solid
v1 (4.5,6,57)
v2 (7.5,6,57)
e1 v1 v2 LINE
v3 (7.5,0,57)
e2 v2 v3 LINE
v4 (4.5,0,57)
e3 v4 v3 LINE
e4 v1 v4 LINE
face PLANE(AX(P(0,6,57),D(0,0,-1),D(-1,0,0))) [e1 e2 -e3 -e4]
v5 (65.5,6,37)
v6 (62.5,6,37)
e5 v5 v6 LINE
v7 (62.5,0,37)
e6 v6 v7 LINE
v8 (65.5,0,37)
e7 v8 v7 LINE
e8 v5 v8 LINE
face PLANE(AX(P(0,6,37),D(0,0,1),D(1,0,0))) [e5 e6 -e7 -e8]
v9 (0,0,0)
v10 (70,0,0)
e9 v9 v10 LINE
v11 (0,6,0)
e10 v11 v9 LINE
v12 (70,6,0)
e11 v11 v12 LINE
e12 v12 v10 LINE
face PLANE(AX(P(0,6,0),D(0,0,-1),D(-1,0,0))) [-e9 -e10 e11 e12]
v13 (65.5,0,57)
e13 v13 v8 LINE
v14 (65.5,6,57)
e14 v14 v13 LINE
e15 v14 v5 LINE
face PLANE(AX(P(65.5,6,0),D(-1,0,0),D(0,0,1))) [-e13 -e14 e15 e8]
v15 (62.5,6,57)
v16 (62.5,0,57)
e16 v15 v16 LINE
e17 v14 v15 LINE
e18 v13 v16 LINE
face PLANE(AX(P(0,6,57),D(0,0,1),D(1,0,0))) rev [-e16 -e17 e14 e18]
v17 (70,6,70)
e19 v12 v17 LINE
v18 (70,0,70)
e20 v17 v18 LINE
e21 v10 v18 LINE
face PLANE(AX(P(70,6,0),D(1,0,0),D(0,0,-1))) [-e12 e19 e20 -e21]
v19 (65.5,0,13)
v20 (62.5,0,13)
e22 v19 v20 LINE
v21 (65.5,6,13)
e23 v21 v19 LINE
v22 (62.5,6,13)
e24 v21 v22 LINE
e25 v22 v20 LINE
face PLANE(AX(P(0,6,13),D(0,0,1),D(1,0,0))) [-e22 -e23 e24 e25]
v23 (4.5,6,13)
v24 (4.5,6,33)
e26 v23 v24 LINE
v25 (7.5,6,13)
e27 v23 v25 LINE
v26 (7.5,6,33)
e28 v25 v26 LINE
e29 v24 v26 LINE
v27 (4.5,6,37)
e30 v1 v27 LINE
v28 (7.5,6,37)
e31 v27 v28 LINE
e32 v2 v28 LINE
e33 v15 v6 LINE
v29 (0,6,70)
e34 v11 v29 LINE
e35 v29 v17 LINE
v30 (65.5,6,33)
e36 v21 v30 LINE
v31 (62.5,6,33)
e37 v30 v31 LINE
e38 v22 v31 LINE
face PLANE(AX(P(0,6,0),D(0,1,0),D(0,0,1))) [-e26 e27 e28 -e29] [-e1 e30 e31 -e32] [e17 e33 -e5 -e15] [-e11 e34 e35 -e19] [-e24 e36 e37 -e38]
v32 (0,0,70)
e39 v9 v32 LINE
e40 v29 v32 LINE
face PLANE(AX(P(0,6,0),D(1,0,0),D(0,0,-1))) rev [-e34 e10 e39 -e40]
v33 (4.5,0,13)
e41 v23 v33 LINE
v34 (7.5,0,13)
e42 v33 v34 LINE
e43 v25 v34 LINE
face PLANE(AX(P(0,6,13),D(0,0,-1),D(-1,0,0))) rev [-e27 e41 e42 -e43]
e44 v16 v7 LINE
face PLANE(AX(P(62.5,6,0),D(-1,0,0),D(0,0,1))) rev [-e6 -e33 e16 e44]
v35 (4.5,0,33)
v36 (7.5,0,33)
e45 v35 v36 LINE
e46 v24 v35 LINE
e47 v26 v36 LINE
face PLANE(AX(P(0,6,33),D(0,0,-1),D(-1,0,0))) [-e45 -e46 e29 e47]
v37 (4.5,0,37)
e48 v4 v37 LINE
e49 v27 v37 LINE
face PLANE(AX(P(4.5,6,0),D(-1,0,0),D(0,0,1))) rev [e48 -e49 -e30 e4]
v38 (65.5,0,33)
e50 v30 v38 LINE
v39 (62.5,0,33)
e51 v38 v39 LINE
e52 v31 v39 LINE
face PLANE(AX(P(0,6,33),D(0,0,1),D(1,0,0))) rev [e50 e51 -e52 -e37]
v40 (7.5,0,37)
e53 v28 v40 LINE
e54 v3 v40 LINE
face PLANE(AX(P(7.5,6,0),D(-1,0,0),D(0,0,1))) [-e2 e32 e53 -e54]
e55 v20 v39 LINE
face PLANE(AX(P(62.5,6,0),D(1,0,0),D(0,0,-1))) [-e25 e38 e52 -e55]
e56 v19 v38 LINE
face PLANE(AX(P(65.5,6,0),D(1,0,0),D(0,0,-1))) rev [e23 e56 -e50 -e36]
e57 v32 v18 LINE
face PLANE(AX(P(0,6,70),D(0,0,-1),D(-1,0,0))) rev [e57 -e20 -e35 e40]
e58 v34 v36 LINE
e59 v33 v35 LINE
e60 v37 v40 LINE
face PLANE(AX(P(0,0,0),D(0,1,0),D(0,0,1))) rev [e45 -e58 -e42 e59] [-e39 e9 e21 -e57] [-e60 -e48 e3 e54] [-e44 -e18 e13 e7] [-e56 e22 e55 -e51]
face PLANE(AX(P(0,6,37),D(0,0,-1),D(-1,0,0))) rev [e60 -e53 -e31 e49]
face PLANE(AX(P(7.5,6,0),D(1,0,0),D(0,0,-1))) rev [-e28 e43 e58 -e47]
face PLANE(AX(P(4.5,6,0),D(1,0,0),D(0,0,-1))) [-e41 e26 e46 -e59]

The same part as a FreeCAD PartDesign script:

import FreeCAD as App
import Part
import Sketcher

V = App.Vector


def add_polygon(sketch, points):
    """Adds a closed chain of lines whose ends are joined by coincident constraints."""
    first, n = sketch.GeometryCount, len(points)
    for a, b in zip(points, points[1:] + points[:1]):
        sketch.addGeometry(Part.LineSegment(App.Vector(*a, 0), App.Vector(*b, 0)), False)
    for i in range(n):
        sketch.addConstraint(Sketcher.Constraint("Coincident", first + i, 2, first + (i + 1) % n, 1))

doc = App.newDocument("Part")
body = doc.addObject("PartDesign::Body", "Body")

sketch1 = doc.addObject("Sketcher::SketchObject", "Sketch")
body.addObject(sketch1)
sketch1.AttachmentSupport = (doc.XZ_Plane, [""])
sketch1.MapMode = "FlatFace"
add_polygon(sketch1, [(0, 0), (0, 70), (70, 70), (70, 0)])
add_polygon(sketch1, [(7.5, 57), (4.5, 57), (4.5, 37), (7.5, 37)])
add_polygon(sketch1, [(65.5, 57), (62.5, 57), (62.5, 37), (65.5, 37)])
add_polygon(sketch1, [(7.5, 33), (4.5, 33), (4.5, 13), (7.5, 13)])
add_polygon(sketch1, [(65.5, 33), (62.5, 33), (62.5, 13), (65.5, 13)])
sketch1.addConstraint(Sketcher.Constraint("Vertical", 0))
sketch1.addConstraint(Sketcher.Constraint("Horizontal", 1))
sketch1.addConstraint(Sketcher.Constraint("Vertical", 2))
sketch1.addConstraint(Sketcher.Constraint("Horizontal", 3))
sketch1.addConstraint(Sketcher.Constraint("Horizontal", 4))
sketch1.addConstraint(Sketcher.Constraint("Vertical", 5))
sketch1.addConstraint(Sketcher.Constraint("Horizontal", 6))
sketch1.addConstraint(Sketcher.Constraint("Vertical", 7))
sketch1.addConstraint(Sketcher.Constraint("Horizontal", 8))
sketch1.addConstraint(Sketcher.Constraint("Vertical", 9))
sketch1.addConstraint(Sketcher.Constraint("Horizontal", 10))
sketch1.addConstraint(Sketcher.Constraint("Vertical", 11))
sketch1.addConstraint(Sketcher.Constraint("Horizontal", 12))
sketch1.addConstraint(Sketcher.Constraint("Vertical", 13))
sketch1.addConstraint(Sketcher.Constraint("Horizontal", 14))
sketch1.addConstraint(Sketcher.Constraint("Vertical", 15))
sketch1.addConstraint(Sketcher.Constraint("Horizontal", 16))
sketch1.addConstraint(Sketcher.Constraint("Vertical", 17))
sketch1.addConstraint(Sketcher.Constraint("Horizontal", 18))
sketch1.addConstraint(Sketcher.Constraint("Vertical", 19))
sketch1.addConstraint(Sketcher.Constraint("Coincident", 3, 2, -1, 1))
sketch1.addConstraint(Sketcher.Constraint("Horizontal", 7, 2, 8, 2))
sketch1.addConstraint(Sketcher.Constraint("Horizontal", 6, 2, 9, 2))
sketch1.addConstraint(Sketcher.Constraint("Horizontal", 15, 2, 16, 2))
sketch1.addConstraint(Sketcher.Constraint("Horizontal", 14, 2, 17, 2))
sketch1.addConstraint(Sketcher.Constraint("Vertical", 5, 2, 12, 2))
sketch1.addConstraint(Sketcher.Constraint("Vertical", 7, 2, 14, 2))
sketch1.addConstraint(Sketcher.Constraint("Vertical", 9, 2, 16, 2))
sketch1.addConstraint(Sketcher.Constraint("Vertical", 11, 2, 18, 2))
sketch1.addConstraint(Sketcher.Constraint("Equal", 6, 8))
sketch1.addConstraint(Sketcher.Constraint("Equal", 3, 0))
sketch1.addConstraint(Sketcher.Constraint("Equal", 11, 13))
sketch1.addConstraint(Sketcher.Constraint("DistanceX", 1, 1, 1, 2, 70.0))
sketch1.addConstraint(Sketcher.Constraint("DistanceX", 4, 2, 4, 1, 3.0))
sketch1.addConstraint(Sketcher.Constraint("DistanceY", 5, 2, 5, 1, 20.0))
sketch1.addConstraint(Sketcher.Constraint("DistanceY", -1, 1, 4, 2, 57.0))
sketch1.addConstraint(Sketcher.Constraint("DistanceY", -1, 1, 12, 2, 33.0))
sketch1.addConstraint(Sketcher.Constraint("DistanceX", 7, 2, 8, 2, 55.0))
sketch1.addConstraint(Sketcher.Constraint("DistanceX", -1, 1, 4, 2, 4.5))
pad1 = doc.addObject("PartDesign::Pad", "Pad")
body.addObject(pad1)
pad1.Profile = sketch1
pad1.Length = 6
pad1.Reversed = True

doc.recompute()
